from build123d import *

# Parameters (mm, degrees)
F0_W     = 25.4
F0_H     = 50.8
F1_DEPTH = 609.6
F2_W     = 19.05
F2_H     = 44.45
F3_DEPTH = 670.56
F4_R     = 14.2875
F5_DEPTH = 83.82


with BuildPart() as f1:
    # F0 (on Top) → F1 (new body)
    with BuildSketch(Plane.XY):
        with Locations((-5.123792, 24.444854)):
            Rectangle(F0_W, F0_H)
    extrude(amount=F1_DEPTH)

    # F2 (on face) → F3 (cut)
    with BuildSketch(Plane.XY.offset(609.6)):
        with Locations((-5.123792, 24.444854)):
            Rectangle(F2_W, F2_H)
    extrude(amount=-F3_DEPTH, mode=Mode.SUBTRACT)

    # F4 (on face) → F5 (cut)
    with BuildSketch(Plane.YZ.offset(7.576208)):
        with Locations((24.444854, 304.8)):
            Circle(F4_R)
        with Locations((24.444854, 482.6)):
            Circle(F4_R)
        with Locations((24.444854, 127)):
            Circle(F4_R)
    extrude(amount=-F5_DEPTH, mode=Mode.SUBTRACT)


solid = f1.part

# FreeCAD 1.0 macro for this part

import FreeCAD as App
import Part
import Sketcher
from FreeCAD import Vector
Q = App.Units.Quantity


def add_polygon(sketch, points):
    """Adds a closed chain of lines whose ends are joined by coincident constraints."""
    first, n = sketch.GeometryCount, len(points)
    for a, b in zip(points, points[1:] + points[:1]):
        sketch.addGeometry(Part.LineSegment(App.Vector(*a, 0), App.Vector(*b, 0)), False)
    for i in range(n):
        sketch.addConstraint(Sketcher.Constraint("Coincident", first + i, 2, first + (i + 1) % n, 1))

doc = App.newDocument("Part")
params = doc.addObject("Spreadsheet::Sheet", "Params")
for row, (alias, value) in enumerate([
    ("sketch1_width", "1 in"),
    ("sketch1_height", "2 in"),
    ("pad1_length", "24 in"),
    ("sketch2_width", "0.75 in"),
    ("sketch2_height", "1.75 in"),
    ("pocket1_length", "26.4 in"),
    ("sketch3_diameter", "1.125 in"),
    ("pocket2_length", "3.3 in"),
], start=1):
    params.set(f"A{row}", alias)
    params.set(f"B{row}", "=" + value)
    params.setAlias(f"B{row}", alias)

body = doc.addObject("PartDesign::Body", "Body")

sketch1 = body.newObject("Sketcher::SketchObject", "Sketch")
sketch1.AttachmentSupport = (doc.getObject("XY_Plane"), [""])
sketch1.MapMode = "FlatFace"
add_polygon(sketch1, [(-18, 50), (-18, -1), (8, -1), (8, 50)])
sketch1.addConstraint([
    Sketcher.Constraint("Vertical", 0),
    Sketcher.Constraint("Horizontal", 1),
    Sketcher.Constraint("Vertical", 2),
    Sketcher.Constraint("Horizontal", 3),
    Sketcher.Constraint("DistanceX", 1, 1, 1, 2, Q("1 in")),
    Sketcher.Constraint("DistanceY", 0, 2, 0, 1, Q("2 in")),
    Sketcher.Constraint("DistanceX", -1, 1, 1, 2, 7.576208),
    Sketcher.Constraint("DistanceY", 0, 2, -1, 1, 0.955146),
])
sketch1.setExpression("Constraints[8]", "Params.sketch1_width")
sketch1.setExpression("Constraints[9]", "Params.sketch1_height")
pad1 = body.newObject("PartDesign::Pad", "Pad")
pad1.Profile = sketch1
pad1.setExpression("Length", "Params.pad1_length")

sketch2 = body.newObject("Sketcher::SketchObject", "Sketch001")
sketch2.AttachmentSupport = (doc.getObject("XY_Plane"), [""])
sketch2.MapMode = "FlatFace"
sketch2.AttachmentOffset = App.Placement(Vector(0, 0, 24 * 25.4), App.Rotation())
add_polygon(sketch2, [(-15, 47), (-15, 2), (4, 2), (4, 47)])
sketch2.addConstraint([
    Sketcher.Constraint("Vertical", 0),
    Sketcher.Constraint("Horizontal", 1),
    Sketcher.Constraint("Vertical", 2),
    Sketcher.Constraint("Horizontal", 3),
    Sketcher.Constraint("DistanceX", 1, 1, 1, 2, Q("0.75 in")),
    Sketcher.Constraint("DistanceY", 0, 2, 0, 1, Q("1.75 in")),
    Sketcher.Constraint("DistanceX", 0, 2, -1, 1, 14.648792),
    Sketcher.Constraint("DistanceY", -1, 1, 0, 2, 2.219854),
])
sketch2.setExpression("Constraints[8]", "Params.sketch2_width")
sketch2.setExpression("Constraints[9]", "Params.sketch2_height")
pocket1 = body.newObject("PartDesign::Pocket", "Pocket")
pocket1.Profile = sketch2
pocket1.setExpression("Length", "Params.pocket1_length")

sketch3 = body.newObject("Sketcher::SketchObject", "Sketch002")
sketch3.AttachmentSupport = (doc.getObject("YZ_Plane"), [""])
sketch3.MapMode = "FlatFace"
sketch3.AttachmentOffset = App.Placement(Vector(0, 0, 7.576208), App.Rotation())
sketch3.addGeometry([
    Part.Circle(Vector(24, 305, 0), Vector(0, 0, 1), 14),
    Part.Circle(Vector(24, 483, 0), Vector(0, 0, 1), 14),
    Part.Circle(Vector(24, 127, 0), Vector(0, 0, 1), 14),
], False)
sketch3.addConstraint([
    Sketcher.Constraint("Equal", 0, 1),
    Sketcher.Constraint("Equal", 1, 2),
    Sketcher.Constraint("Vertical", 0, 3, 1, 3),
    Sketcher.Constraint("Vertical", 1, 3, 2, 3),
    Sketcher.Constraint("Diameter", 0, Q("1.125 in")),
    Sketcher.Constraint("DistanceY", -1, 1, 0, 3, Q("12 in")),
    Sketcher.Constraint("DistanceY", -1, 1, 1, 3, Q("19 in")),
    Sketcher.Constraint("DistanceY", -1, 1, 2, 3, Q("5 in")),
    Sketcher.Constraint("DistanceX", -1, 1, 0, 3, 24.444854),
])
sketch3.setExpression("Constraints[4]", "Params.sketch3_diameter")
pocket2 = body.newObject("PartDesign::Pocket", "Pocket001")
pocket2.Profile = sketch3
pocket2.setExpression("Length", "Params.pocket2_length")

doc.recompute()
